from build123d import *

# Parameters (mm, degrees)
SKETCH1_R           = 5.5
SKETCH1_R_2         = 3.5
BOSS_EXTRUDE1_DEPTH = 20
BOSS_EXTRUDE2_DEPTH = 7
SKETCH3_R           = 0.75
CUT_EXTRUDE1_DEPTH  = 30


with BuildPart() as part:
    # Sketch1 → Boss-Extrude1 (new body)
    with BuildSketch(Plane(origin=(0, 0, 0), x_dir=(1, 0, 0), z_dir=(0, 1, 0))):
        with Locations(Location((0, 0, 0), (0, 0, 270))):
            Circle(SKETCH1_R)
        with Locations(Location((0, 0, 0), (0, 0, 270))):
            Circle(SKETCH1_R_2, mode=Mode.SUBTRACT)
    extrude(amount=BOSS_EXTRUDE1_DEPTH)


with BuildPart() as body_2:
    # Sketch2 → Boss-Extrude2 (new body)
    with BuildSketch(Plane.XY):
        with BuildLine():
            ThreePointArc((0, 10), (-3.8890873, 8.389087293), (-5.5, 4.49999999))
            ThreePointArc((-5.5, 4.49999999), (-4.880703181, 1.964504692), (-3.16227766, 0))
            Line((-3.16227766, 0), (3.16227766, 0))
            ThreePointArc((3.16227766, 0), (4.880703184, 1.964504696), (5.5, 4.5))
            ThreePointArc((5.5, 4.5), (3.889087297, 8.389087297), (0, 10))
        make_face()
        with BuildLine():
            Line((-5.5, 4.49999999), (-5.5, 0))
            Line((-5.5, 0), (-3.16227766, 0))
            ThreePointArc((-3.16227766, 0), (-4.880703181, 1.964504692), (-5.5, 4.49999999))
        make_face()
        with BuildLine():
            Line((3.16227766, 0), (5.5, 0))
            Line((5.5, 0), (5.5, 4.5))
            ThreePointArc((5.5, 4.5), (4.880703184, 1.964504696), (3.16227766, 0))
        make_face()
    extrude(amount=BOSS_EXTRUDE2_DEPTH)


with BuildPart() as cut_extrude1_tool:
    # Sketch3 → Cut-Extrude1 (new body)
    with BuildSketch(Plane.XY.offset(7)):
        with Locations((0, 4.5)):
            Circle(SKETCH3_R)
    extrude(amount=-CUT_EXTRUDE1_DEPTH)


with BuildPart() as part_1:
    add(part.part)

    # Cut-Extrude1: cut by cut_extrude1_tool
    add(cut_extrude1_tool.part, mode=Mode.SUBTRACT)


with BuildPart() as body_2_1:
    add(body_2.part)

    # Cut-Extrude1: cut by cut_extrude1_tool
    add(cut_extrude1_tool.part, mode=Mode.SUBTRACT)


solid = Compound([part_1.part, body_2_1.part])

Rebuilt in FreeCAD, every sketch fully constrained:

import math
import FreeCAD as App
import Part
import Sketcher
from FreeCAD import Vector
Q = App.Units.Quantity

doc = App.newDocument("Part")
params = doc.addObject("Spreadsheet::Sheet", "Params")
for row, (alias, value) in enumerate([
    ("sketch1_diameter", "11 mm"),
    ("sketch1_diameter2", "7 mm"),
    ("pad1_length", "20 mm"),
    ("sketch2_radius", "5.5 mm"),
    ("sketch2_height", "4.5 mm"),
    ("pad2_length", "7 mm"),
    ("sketch3_diameter", "1.5 mm"),
    ("pad3_length", "30 mm"),
], start=1):
    params.set(f"A{row}", alias)
    params.set(f"B{row}", "=" + value)
    params.setAlias(f"B{row}", alias)

body = doc.addObject("PartDesign::Body", "Body")

# Sketch on XZ plane
sketch1 = body.newObject("Sketcher::SketchObject", "Sketch")
sketch1.AttachmentSupport = (doc.getObject("XZ_Plane"), [""])
sketch1.MapMode = "FlatFace"
sketch1.addGeometry(Part.Circle(Vector(0, 0, 0), Vector(0, 0, 1), 5.5), False)
sketch1.addGeometry(Part.Circle(Vector(0, 0, 0), Vector(0, 0, 1), 3.5), False)
sketch1.addConstraint(Sketcher.Constraint("Coincident", 0, 3, -1, 1))
sketch1.addConstraint(Sketcher.Constraint("Coincident", 1, 3, -1, 1))
sketch1.addConstraint(Sketcher.Constraint("Diameter", 0, Q("11 mm")))
sketch1.addConstraint(Sketcher.Constraint("Diameter", 1, Q("7 mm")))
sketch1.setExpression("Constraints[2]", "Params.sketch1_diameter")
sketch1.setExpression("Constraints[3]", "Params.sketch1_diameter2")
pad1 = body.newObject("PartDesign::Pad", "Pad")
pad1.Profile = sketch1
pad1.setExpression("Length", "Params.pad1_length")
pad1.Reversed = True
body2 = doc.addObject("PartDesign::Body", "Body001")

# Sketch on XY plane
sketch2 = body2.newObject("Sketcher::SketchObject", "Sketch001")
sketch2.AttachmentSupport = (doc.getObject("XY_Plane001"), [""])
sketch2.MapMode = "FlatFace"
sketch2.addGeometry(Part.ArcOfCircle(Part.Circle(Vector(0, 4.5, 0), Vector(0, 0, 1), 5.5), math.radians(90), math.radians(180)), False)
sketch2.addGeometry(Part.LineSegment(Vector(-5.5, 4.5, 0), Vector(-5.5, 0, 0)), False)
sketch2.addGeometry(Part.LineSegment(Vector(-5.5, 0, 0), Vector(5.5, 0, 0)), False)
sketch2.addGeometry(Part.LineSegment(Vector(5.5, 0, 0), Vector(5.5, 4.5, 0)), False)
sketch2.addGeometry(Part.ArcOfCircle(Part.Circle(Vector(0, 4.5, 0), Vector(0, 0, 1), 5.5), math.radians(0), math.radians(90)), False)
sketch2.addConstraint(Sketcher.Constraint("Tangent", 0, 2, 1, 1))
sketch2.addConstraint(Sketcher.Constraint("Coincident", 1, 2, 2, 1))
sketch2.addConstraint(Sketcher.Constraint("Coincident", 2, 2, 3, 1))
sketch2.addConstraint(Sketcher.Constraint("Tangent", 3, 2, 4, 1))
sketch2.addConstraint(Sketcher.Constraint("Tangent", 4, 2, 0, 1))
sketch2.addConstraint(Sketcher.Constraint("Vertical", 1))
sketch2.addConstraint(Sketcher.Constraint("Horizontal", 2))
sketch2.addConstraint(Sketcher.Constraint("Vertical", 3))
sketch2.addConstraint(Sketcher.Constraint("Equal", 0, 4))
sketch2.addConstraint(Sketcher.Constraint("Symmetric", 1, 2, 2, 2, -1, 1))
sketch2.addConstraint(Sketcher.Constraint("PointOnObject", 4, 2, -2))
sketch2.addConstraint(Sketcher.Constraint("Radius", 0, Q("5.5 mm")))
sketch2.addConstraint(Sketcher.Constraint("DistanceY", 1, 2, 1, 1, Q("4.5 mm")))
sketch2.setExpression("Constraints[11]", "Params.sketch2_radius")
sketch2.setExpression("Constraints[12]", "Params.sketch2_height")
pad2 = body2.newObject("PartDesign::Pad", "Pad001")
pad2.Profile = sketch2
pad2.setExpression("Length", "Params.pad2_length")
body3 = doc.addObject("PartDesign::Body", "Body002")

# Sketch on XY plane
sketch3 = body3.newObject("Sketcher::SketchObject", "Sketch002")
sketch3.AttachmentSupport = (doc.getObject("XY_Plane002"), [""])
sketch3.MapMode = "FlatFace"
sketch3.AttachmentOffset = App.Placement(Vector(0, 0, 7), App.Rotation())
sketch3.addGeometry(Part.Circle(Vector(0, 4.5, 0), Vector(0, 0, 1), 0.75), False)
sketch3.addConstraint(Sketcher.Constraint("PointOnObject", 0, 3, -2))
sketch3.addConstraint(Sketcher.Constraint("Diameter", 0, Q("1.5 mm")))
sketch3.addConstraint(Sketcher.Constraint("DistanceY", -1, 1, 0, 3, Q("4.5 mm")))
sketch3.setExpression("Constraints[1]", "Params.sketch3_diameter")
pad3 = body3.newObject("PartDesign::Pad", "Pad002")
pad3.Profile = sketch3
pad3.setExpression("Length", "Params.pad3_length")
pad3.Reversed = True
doc.recompute()

body4 = doc.addObject("PartDesign::Body", "Body003")
body4.BaseFeature = body3
boolean = body.newObject("PartDesign::Boolean", "Boolean")
boolean.Type = "Cut"
boolean.addObjects([body4])
doc.recompute()

boolean2 = body2.newObject("PartDesign::Boolean", "Boolean001")
boolean2.Type = "Cut"
boolean2.addObjects([body3])

doc.recompute()
